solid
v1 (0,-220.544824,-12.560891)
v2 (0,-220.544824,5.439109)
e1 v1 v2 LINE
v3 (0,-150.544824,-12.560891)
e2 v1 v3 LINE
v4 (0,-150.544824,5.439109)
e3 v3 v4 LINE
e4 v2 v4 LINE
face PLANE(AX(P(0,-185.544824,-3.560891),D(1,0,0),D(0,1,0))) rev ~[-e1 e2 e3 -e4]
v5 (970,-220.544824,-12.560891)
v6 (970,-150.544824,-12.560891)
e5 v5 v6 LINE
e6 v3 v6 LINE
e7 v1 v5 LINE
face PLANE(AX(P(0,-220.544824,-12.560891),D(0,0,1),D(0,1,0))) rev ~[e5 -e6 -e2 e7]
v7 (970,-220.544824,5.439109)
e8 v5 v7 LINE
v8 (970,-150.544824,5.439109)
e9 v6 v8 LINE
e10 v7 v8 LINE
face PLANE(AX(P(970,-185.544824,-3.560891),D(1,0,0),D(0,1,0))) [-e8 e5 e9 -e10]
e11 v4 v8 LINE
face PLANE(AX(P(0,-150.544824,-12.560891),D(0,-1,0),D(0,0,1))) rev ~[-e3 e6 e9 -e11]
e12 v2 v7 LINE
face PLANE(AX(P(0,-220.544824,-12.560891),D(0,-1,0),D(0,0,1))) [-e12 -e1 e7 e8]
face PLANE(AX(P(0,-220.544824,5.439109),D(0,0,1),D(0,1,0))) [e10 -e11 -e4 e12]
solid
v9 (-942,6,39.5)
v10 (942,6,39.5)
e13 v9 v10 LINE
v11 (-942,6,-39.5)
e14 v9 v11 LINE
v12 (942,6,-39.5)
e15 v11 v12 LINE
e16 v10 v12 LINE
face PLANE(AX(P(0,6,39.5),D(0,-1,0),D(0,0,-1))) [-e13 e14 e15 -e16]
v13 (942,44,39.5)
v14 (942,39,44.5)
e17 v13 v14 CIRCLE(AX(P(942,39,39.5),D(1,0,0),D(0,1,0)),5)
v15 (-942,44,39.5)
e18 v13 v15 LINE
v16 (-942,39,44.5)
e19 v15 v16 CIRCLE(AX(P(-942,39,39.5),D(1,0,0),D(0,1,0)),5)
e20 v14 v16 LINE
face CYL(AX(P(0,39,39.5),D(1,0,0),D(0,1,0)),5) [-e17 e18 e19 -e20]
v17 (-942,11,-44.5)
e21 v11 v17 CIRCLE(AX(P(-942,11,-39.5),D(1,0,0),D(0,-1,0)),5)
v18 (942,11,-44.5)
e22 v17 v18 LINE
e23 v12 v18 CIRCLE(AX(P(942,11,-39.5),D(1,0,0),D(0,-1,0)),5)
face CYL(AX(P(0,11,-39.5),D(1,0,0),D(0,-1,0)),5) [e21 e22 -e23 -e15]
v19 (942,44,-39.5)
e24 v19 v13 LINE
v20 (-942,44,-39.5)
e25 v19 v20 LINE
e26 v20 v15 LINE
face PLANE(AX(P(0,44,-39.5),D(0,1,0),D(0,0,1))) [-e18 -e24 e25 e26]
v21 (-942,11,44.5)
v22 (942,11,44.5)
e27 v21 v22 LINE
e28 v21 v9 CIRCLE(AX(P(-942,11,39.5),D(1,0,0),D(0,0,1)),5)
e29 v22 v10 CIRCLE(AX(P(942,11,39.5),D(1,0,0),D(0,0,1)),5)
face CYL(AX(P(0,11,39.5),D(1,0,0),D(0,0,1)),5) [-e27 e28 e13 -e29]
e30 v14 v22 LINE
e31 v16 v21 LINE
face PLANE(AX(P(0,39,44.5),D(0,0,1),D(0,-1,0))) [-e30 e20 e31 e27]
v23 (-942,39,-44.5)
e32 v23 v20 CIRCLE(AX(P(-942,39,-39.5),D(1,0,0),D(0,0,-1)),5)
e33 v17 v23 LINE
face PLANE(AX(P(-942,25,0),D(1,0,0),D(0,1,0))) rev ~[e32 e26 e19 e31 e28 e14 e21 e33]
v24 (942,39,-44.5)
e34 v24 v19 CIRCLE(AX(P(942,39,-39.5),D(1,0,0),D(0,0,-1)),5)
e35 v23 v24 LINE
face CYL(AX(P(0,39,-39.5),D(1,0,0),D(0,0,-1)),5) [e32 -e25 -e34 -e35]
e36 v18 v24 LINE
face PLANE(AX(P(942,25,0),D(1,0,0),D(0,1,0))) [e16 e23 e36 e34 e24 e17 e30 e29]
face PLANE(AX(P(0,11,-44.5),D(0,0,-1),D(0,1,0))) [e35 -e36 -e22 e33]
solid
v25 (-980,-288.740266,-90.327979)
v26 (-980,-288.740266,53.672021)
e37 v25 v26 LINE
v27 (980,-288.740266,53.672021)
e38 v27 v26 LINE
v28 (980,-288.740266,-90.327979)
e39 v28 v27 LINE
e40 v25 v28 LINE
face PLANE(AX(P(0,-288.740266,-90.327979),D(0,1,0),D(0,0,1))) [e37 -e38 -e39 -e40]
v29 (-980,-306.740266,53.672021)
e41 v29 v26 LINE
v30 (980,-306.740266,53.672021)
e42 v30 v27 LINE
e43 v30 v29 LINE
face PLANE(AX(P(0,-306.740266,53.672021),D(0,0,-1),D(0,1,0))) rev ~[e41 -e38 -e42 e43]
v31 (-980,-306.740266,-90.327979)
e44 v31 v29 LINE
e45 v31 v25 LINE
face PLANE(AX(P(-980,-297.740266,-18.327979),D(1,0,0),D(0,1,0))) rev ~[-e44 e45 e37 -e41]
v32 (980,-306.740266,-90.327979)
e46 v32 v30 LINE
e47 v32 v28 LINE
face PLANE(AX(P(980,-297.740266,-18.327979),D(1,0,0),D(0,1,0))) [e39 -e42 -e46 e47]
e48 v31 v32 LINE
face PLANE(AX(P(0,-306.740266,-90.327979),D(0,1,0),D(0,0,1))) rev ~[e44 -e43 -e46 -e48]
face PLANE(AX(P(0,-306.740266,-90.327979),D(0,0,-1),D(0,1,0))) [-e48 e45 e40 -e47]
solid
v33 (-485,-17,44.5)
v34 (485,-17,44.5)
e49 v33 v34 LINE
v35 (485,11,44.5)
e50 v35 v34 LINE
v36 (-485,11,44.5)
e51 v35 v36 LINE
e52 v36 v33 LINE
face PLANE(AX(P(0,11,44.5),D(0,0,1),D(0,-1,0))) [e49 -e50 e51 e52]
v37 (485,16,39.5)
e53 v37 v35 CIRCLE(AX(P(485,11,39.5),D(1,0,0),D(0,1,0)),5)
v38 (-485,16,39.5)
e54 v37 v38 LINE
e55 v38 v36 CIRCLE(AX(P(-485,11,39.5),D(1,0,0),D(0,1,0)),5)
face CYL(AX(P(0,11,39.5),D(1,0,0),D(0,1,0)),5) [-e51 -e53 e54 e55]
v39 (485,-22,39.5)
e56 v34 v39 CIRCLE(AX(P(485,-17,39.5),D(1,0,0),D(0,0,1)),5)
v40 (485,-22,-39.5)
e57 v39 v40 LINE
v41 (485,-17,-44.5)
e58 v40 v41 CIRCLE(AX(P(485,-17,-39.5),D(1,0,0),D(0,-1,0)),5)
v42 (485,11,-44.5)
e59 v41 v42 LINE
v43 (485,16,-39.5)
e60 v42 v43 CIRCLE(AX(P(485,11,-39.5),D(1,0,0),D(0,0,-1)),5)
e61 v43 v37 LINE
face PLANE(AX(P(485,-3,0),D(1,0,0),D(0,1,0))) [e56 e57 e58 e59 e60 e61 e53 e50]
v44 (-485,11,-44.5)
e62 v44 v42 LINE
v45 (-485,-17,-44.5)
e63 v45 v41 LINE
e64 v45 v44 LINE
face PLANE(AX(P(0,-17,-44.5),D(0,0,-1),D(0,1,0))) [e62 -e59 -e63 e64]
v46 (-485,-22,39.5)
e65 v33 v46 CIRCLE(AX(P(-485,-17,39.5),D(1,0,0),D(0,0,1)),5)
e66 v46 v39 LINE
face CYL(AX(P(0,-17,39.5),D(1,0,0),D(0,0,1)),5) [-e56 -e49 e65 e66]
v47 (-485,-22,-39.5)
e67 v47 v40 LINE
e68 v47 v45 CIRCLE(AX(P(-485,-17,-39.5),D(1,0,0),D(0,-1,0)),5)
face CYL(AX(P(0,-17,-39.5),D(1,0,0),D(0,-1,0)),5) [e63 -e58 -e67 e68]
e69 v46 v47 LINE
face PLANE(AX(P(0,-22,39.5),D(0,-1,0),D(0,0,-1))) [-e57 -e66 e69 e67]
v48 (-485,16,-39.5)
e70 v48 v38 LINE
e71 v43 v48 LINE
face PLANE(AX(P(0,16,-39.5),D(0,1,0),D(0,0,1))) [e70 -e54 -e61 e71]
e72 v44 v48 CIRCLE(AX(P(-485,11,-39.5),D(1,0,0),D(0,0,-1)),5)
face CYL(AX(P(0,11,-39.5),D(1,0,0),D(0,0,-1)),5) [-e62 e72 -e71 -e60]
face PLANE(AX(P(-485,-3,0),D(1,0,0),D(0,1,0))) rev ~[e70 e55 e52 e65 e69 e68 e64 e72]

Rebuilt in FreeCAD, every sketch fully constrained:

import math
import FreeCAD as App
import Part
import Sketcher

V = App.Vector
Q = App.Units.Quantity

doc = App.newDocument("Part")
body = doc.addObject("PartDesign::Body", "Body")

# Sketch on YZ plane
sketch1 = body.newObject("Sketcher::SketchObject", "Sketch")
sketch1.AttachmentSupport = (doc.getObject("YZ_Plane"), [""])
sketch1.MapMode = "FlatFace"
sketch1.addGeometry(Part.LineSegment(V(39, 44, 0), V(11, 44, 0)), False)
sketch1.addGeometry(Part.ArcOfCircle(Part.Circle(V(11, 40, 0), V(0, 0, 1), 5), math.radians(90), math.radians(180)), False)
sketch1.addGeometry(Part.LineSegment(V(6, 40, 0), V(6, -40, 0)), False)
sketch1.addGeometry(Part.ArcOfCircle(Part.Circle(V(11, -40, 0), V(0, 0, 1), 5), math.radians(180), math.radians(270)), False)
sketch1.addGeometry(Part.LineSegment(V(11, -44, 0), V(39, -44, 0)), False)
sketch1.addGeometry(Part.ArcOfCircle(Part.Circle(V(39, -40, 0), V(0, 0, 1), 5), math.radians(-90), math.radians(0)), False)
sketch1.addGeometry(Part.LineSegment(V(44, -40, 0), V(44, 40, 0)), False)
sketch1.addGeometry(Part.ArcOfCircle(Part.Circle(V(39, 40, 0), V(0, 0, 1), 5), math.radians(0), math.radians(90)), False)
sketch1.addConstraint(Sketcher.Constraint("Tangent", 0, 2, 1, 1))
sketch1.addConstraint(Sketcher.Constraint("Tangent", 1, 2, 2, 1))
sketch1.addConstraint(Sketcher.Constraint("Tangent", 2, 2, 3, 1))
sketch1.addConstraint(Sketcher.Constraint("Tangent", 3, 2, 4, 1))
sketch1.addConstraint(Sketcher.Constraint("Tangent", 4, 2, 5, 1))
sketch1.addConstraint(Sketcher.Constraint("Tangent", 5, 2, 6, 1))
sketch1.addConstraint(Sketcher.Constraint("Tangent", 6, 2, 7, 1))
sketch1.addConstraint(Sketcher.Constraint("Tangent", 7, 2, 0, 1))
sketch1.addConstraint(Sketcher.Constraint("Horizontal", 0))
sketch1.addConstraint(Sketcher.Constraint("Vertical", 2))
sketch1.addConstraint(Sketcher.Constraint("Horizontal", 4))
sketch1.addConstraint(Sketcher.Constraint("Vertical", 6))
sketch1.addConstraint(Sketcher.Constraint("Equal", 1, 3))
sketch1.addConstraint(Sketcher.Constraint("Equal", 3, 5))
sketch1.addConstraint(Sketcher.Constraint("Equal", 5, 7))
sketch1.addConstraint(Sketcher.Constraint("Radius", 1, Q("5 mm")))
sketch1.addConstraint(Sketcher.Constraint("DistanceX", 0, 2, 0, 1, Q("28 mm")))
sketch1.addConstraint(Sketcher.Constraint("DistanceY", 2, 2, 2, 1, Q("79 mm")))
sketch1.addConstraint(Sketcher.Constraint("DistanceX", -1, 1, 1, 3, Q("11 mm")))
sketch1.addConstraint(Sketcher.Constraint("DistanceY", -1, 1, 1, 3, Q("39.5 mm")))
pad1 = body.newObject("PartDesign::Pad", "Pad")
pad1.Profile = sketch1
pad1.Length = 1884
pad1.Midplane = True
body2 = doc.addObject("PartDesign::Body", "Body001")

# Sketch on YZ plane
sketch2 = body2.newObject("Sketcher::SketchObject", "Sketch001")
sketch2.AttachmentSupport = (doc.getObject("YZ_Plane001"), [""])
sketch2.MapMode = "FlatFace"
sketch2.addGeometry(Part.LineSegment(V(-307, 54, 0), V(-307, -90, 0)), False)
sketch2.addGeometry(Part.LineSegment(V(-307, -90, 0), V(-289, -90, 0)), False)
sketch2.addGeometry(Part.LineSegment(V(-289, -90, 0), V(-289, 54, 0)), False)
sketch2.addGeometry(Part.LineSegment(V(-289, 54, 0), V(-307, 54, 0)), False)
sketch2.addConstraint(Sketcher.Constraint("Coincident", 0, 2, 1, 1))
sketch2.addConstraint(Sketcher.Constraint("Coincident", 1, 2, 2, 1))
sketch2.addConstraint(Sketcher.Constraint("Coincident", 2, 2, 3, 1))
sketch2.addConstraint(Sketcher.Constraint("Coincident", 3, 2, 0, 1))
sketch2.addConstraint(Sketcher.Constraint("Vertical", 0))
sketch2.addConstraint(Sketcher.Constraint("Horizontal", 1))
sketch2.addConstraint(Sketcher.Constraint("Vertical", 2))
sketch2.addConstraint(Sketcher.Constraint("Horizontal", 3))
sketch2.addConstraint(Sketcher.Constraint("DistanceX", 1, 1, 1, 2, Q("18 mm")))
sketch2.addConstraint(Sketcher.Constraint("DistanceY", 0, 2, 0, 1, Q("144 mm")))
sketch2.addConstraint(Sketcher.Constraint("DistanceY", 0, 2, -1, 1, Q("90.327979 mm")))
sketch2.addConstraint(Sketcher.Constraint("DistanceX", 0, 2, -1, 1, Q("306.740266 mm")))
pad2 = body2.newObject("PartDesign::Pad", "Pad001")
pad2.Profile = sketch2
pad2.Length = 1960
pad2.Midplane = True
body3 = doc.addObject("PartDesign::Body", "Body002")

# Sketch on YZ plane
sketch3 = body3.newObject("Sketcher::SketchObject", "Sketch002")
sketch3.AttachmentSupport = (doc.getObject("YZ_Plane002"), [""])
sketch3.MapMode = "FlatFace"
sketch3.addGeometry(Part.LineSegment(V(11, 44, 0), V(-17, 44, 0)), False)
sketch3.addGeometry(Part.ArcOfCircle(Part.Circle(V(-17, 40, 0), V(0, 0, 1), 5), math.radians(90), math.radians(180)), False)
sketch3.addGeometry(Part.LineSegment(V(-22, 40, 0), V(-22, -40, 0)), False)
sketch3.addGeometry(Part.ArcOfCircle(Part.Circle(V(-17, -40, 0), V(0, 0, 1), 5), math.radians(180), math.radians(270)), False)
sketch3.addGeometry(Part.LineSegment(V(-17, -44, 0), V(11, -44, 0)), False)
sketch3.addGeometry(Part.ArcOfCircle(Part.Circle(V(11, -40, 0), V(0, 0, 1), 5), math.radians(-90), math.radians(0)), False)
sketch3.addGeometry(Part.LineSegment(V(16, -40, 0), V(16, 40, 0)), False)
sketch3.addGeometry(Part.ArcOfCircle(Part.Circle(V(11, 40, 0), V(0, 0, 1), 5), math.radians(0), math.radians(90)), False)
sketch3.addConstraint(Sketcher.Constraint("Tangent", 0, 2, 1, 1))
sketch3.addConstraint(Sketcher.Constraint("Tangent", 1, 2, 2, 1))
sketch3.addConstraint(Sketcher.Constraint("Tangent", 2, 2, 3, 1))
sketch3.addConstraint(Sketcher.Constraint("Tangent", 3, 2, 4, 1))
sketch3.addConstraint(Sketcher.Constraint("Tangent", 4, 2, 5, 1))
sketch3.addConstraint(Sketcher.Constraint("Tangent", 5, 2, 6, 1))
sketch3.addConstraint(Sketcher.Constraint("Tangent", 6, 2, 7, 1))
sketch3.addConstraint(Sketcher.Constraint("Tangent", 7, 2, 0, 1))
sketch3.addConstraint(Sketcher.Constraint("Horizontal", 0))
sketch3.addConstraint(Sketcher.Constraint("Vertical", 2))
sketch3.addConstraint(Sketcher.Constraint("Horizontal", 4))
sketch3.addConstraint(Sketcher.Constraint("Vertical", 6))
sketch3.addConstraint(Sketcher.Constraint("Equal", 1, 3))
sketch3.addConstraint(Sketcher.Constraint("Equal", 3, 5))
sketch3.addConstraint(Sketcher.Constraint("Equal", 5, 7))
sketch3.addConstraint(Sketcher.Constraint("Radius", 1, Q("5 mm")))
sketch3.addConstraint(Sketcher.Constraint("DistanceX", 0, 2, 0, 1, Q("28 mm")))
sketch3.addConstraint(Sketcher.Constraint("DistanceY", 2, 2, 2, 1, Q("79 mm")))
sketch3.addConstraint(Sketcher.Constraint("DistanceX", 1, 3, -1, 1, Q("17 mm")))
sketch3.addConstraint(Sketcher.Constraint("DistanceY", -1, 1, 1, 3, Q("39.5 mm")))
pad3 = body3.newObject("PartDesign::Pad", "Pad002")
pad3.Profile = sketch3
pad3.Length = 970
pad3.Midplane = True
body4 = doc.addObject("PartDesign::Body", "Body003")

# Sketch on YZ plane
sketch4 = body4.newObject("Sketcher::SketchObject", "Sketch003")
sketch4.AttachmentSupport = (doc.getObject("YZ_Plane003"), [""])
sketch4.MapMode = "FlatFace"
sketch4.addGeometry(Part.LineSegment(V(-221, 5, 0), V(-221, -13, 0)), False)
sketch4.addGeometry(Part.LineSegment(V(-221, -13, 0), V(-151, -13, 0)), False)
sketch4.addGeometry(Part.LineSegment(V(-151, -13, 0), V(-151, 5, 0)), False)
sketch4.addGeometry(Part.LineSegment(V(-151, 5, 0), V(-221, 5, 0)), False)
sketch4.addConstraint(Sketcher.Constraint("Coincident", 0, 2, 1, 1))
sketch4.addConstraint(Sketcher.Constraint("Coincident", 1, 2, 2, 1))
sketch4.addConstraint(Sketcher.Constraint("Coincident", 2, 2, 3, 1))
sketch4.addConstraint(Sketcher.Constraint("Coincident", 3, 2, 0, 1))
sketch4.addConstraint(Sketcher.Constraint("Vertical", 0))
sketch4.addConstraint(Sketcher.Constraint("Horizontal", 1))
sketch4.addConstraint(Sketcher.Constraint("Vertical", 2))
sketch4.addConstraint(Sketcher.Constraint("Horizontal", 3))
sketch4.addConstraint(Sketcher.Constraint("DistanceX", 1, 1, 1, 2, Q("70 mm")))
sketch4.addConstraint(Sketcher.Constraint("DistanceY", 0, 2, 0, 1, Q("18 mm")))
sketch4.addConstraint(Sketcher.Constraint("DistanceY", 0, 2, -1, 1, Q("12.560891 mm")))
sketch4.addConstraint(Sketcher.Constraint("DistanceX", 0, 2, -1, 1, Q("220.544824 mm")))
pad4 = body4.newObject("PartDesign::Pad", "Pad003")
pad4.Profile = sketch4
pad4.Length = 970

doc.recompute()
